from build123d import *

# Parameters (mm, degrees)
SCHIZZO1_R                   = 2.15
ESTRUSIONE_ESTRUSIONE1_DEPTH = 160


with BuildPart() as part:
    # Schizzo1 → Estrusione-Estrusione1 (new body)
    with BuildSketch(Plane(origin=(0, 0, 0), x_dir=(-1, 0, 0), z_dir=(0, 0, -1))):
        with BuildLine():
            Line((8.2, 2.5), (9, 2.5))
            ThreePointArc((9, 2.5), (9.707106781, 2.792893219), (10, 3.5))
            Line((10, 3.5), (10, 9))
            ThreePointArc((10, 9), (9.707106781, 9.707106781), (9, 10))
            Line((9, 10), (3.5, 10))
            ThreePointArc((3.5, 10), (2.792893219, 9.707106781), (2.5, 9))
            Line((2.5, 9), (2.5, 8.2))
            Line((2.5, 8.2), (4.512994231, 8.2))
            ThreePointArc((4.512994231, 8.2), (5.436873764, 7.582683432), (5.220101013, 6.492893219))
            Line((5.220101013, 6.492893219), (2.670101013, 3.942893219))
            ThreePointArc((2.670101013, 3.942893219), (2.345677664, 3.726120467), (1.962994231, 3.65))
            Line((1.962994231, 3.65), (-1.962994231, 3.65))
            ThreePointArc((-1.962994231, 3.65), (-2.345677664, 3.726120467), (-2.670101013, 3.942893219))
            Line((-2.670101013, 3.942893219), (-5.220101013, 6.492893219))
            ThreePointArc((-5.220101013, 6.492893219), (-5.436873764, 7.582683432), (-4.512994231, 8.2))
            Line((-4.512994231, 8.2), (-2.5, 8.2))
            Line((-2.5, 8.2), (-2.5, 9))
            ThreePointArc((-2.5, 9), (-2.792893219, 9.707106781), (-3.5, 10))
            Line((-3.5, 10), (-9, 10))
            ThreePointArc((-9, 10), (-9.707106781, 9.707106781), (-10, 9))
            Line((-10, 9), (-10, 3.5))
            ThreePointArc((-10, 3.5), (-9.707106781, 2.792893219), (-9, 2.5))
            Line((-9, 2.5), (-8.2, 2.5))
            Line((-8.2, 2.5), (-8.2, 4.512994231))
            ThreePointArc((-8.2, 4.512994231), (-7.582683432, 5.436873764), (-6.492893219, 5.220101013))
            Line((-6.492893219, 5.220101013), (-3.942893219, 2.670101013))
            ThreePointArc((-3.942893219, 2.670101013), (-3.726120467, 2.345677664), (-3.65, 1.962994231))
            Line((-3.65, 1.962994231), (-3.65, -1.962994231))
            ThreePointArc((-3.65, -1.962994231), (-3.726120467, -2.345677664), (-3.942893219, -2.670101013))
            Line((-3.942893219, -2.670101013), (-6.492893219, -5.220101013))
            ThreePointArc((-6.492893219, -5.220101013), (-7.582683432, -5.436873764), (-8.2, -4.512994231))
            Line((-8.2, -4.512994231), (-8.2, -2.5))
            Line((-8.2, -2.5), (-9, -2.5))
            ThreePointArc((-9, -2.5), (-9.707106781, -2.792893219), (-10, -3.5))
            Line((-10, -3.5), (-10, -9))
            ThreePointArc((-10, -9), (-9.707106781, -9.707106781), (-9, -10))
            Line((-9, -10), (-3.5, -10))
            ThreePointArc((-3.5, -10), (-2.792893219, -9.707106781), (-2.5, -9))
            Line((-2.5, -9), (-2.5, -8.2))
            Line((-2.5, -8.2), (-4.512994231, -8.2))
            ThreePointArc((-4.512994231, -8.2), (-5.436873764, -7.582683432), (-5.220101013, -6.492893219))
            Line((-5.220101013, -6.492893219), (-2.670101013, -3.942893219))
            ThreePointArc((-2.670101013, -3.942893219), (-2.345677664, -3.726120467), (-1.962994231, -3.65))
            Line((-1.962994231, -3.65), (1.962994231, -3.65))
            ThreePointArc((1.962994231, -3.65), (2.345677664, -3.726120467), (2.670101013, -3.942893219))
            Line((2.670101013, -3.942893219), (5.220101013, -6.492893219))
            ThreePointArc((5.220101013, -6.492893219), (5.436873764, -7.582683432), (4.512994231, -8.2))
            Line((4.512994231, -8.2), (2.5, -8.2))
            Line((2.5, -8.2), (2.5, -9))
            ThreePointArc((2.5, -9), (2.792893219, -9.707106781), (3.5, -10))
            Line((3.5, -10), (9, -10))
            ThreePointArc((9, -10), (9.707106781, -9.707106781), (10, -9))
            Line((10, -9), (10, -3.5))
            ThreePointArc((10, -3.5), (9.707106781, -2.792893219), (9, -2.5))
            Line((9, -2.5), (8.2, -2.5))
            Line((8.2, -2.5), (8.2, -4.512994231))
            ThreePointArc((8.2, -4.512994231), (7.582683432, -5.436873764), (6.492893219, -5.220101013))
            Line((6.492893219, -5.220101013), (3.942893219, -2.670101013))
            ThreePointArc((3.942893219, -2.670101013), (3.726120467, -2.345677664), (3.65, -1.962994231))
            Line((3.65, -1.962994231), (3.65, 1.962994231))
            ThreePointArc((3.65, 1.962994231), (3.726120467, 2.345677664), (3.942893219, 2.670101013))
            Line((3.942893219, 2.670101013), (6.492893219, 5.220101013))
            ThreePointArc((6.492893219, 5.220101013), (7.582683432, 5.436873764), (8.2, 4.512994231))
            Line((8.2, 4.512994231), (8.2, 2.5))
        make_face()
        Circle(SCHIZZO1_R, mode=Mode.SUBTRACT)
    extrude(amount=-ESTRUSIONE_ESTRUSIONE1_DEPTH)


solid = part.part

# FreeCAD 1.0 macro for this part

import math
import FreeCAD as App
import Part
import Sketcher

doc = App.newDocument("Part")
body = doc.addObject("PartDesign::Body", "Body")

sketch1 = body.newObject("Sketcher::SketchObject", "Sketch")
sketch1.AttachmentSupport = (doc.getObject("XY_Plane"), [""])
sketch1.MapMode = "FlatFace"
sketch1.addGeometry(Part.LineSegment(App.Vector(-8.2, 2.5, 0), App.Vector(-9, 2.5, 0)), False)
sketch1.addGeometry(Part.ArcOfCircle(Part.Circle(App.Vector(-9, 3.5, 0), App.Vector(0, 0, 1), 1), math.radians(-180), math.radians(-90)), False)
sketch1.addGeometry(Part.LineSegment(App.Vector(-10, 3.5, 0), App.Vector(-10, 9, 0)), False)
sketch1.addGeometry(Part.ArcOfCircle(Part.Circle(App.Vector(-9, 9, 0), App.Vector(0, 0, 1), 1), math.radians(90), math.radians(180)), False)
sketch1.addGeometry(Part.LineSegment(App.Vector(-9, 10, 0), App.Vector(-3.5, 10, 0)), False)
sketch1.addGeometry(Part.ArcOfCircle(Part.Circle(App.Vector(-3.5, 9, 0), App.Vector(0, 0, 1), 1), math.radians(0), math.radians(90)), False)
sketch1.addGeometry(Part.LineSegment(App.Vector(-2.5, 9, 0), App.Vector(-2.5, 8.2, 0)), False)
sketch1.addGeometry(Part.LineSegment(App.Vector(-2.5, 8.2, 0), App.Vector(-4.512994, 8.2, 0)), False)
sketch1.addGeometry(Part.ArcOfCircle(Part.Circle(App.Vector(-4.512994, 7.2, 0), App.Vector(0, 0, 1), 1), math.radians(90), math.radians(225)), False)
sketch1.addGeometry(Part.LineSegment(App.Vector(-5.220101, 6.492893, 0), App.Vector(-2.670101, 3.942893, 0)), False)
sketch1.addGeometry(Part.ArcOfCircle(Part.Circle(App.Vector(-1.962994, 4.65, 0), App.Vector(0, 0, 1), 1), math.radians(-135), math.radians(-90)), False)
sketch1.addGeometry(Part.LineSegment(App.Vector(-1.962994, 3.65, 0), App.Vector(1.962994, 3.65, 0)), False)
sketch1.addGeometry(Part.ArcOfCircle(Part.Circle(App.Vector(1.962994, 4.65, 0), App.Vector(0, 0, 1), 1), math.radians(-90), math.radians(-45)), False)
sketch1.addGeometry(Part.LineSegment(App.Vector(2.670101, 3.942893, 0), App.Vector(5.220101, 6.492893, 0)), False)
sketch1.addGeometry(Part.ArcOfCircle(Part.Circle(App.Vector(4.512994, 7.2, 0), App.Vector(0, 0, 1), 1), math.radians(-45), math.radians(90)), False)
sketch1.addGeometry(Part.LineSegment(App.Vector(4.512994, 8.2, 0), App.Vector(2.5, 8.2, 0)), False)
sketch1.addGeometry(Part.LineSegment(App.Vector(2.5, 8.2, 0), App.Vector(2.5, 9, 0)), False)
sketch1.addGeometry(Part.ArcOfCircle(Part.Circle(App.Vector(3.5, 9, 0), App.Vector(0, 0, 1), 1), math.radians(90), math.radians(180)), False)
sketch1.addGeometry(Part.LineSegment(App.Vector(3.5, 10, 0), App.Vector(9, 10, 0)), False)
sketch1.addGeometry(Part.ArcOfCircle(Part.Circle(App.Vector(9, 9, 0), App.Vector(0, 0, 1), 1), math.radians(0), math.radians(90)), False)
sketch1.addGeometry(Part.LineSegment(App.Vector(10, 9, 0), App.Vector(10, 3.5, 0)), False)
sketch1.addGeometry(Part.ArcOfCircle(Part.Circle(App.Vector(9, 3.5, 0), App.Vector(0, 0, 1), 1), math.radians(-90), math.radians(0)), False)
sketch1.addGeometry(Part.LineSegment(App.Vector(9, 2.5, 0), App.Vector(8.2, 2.5, 0)), False)
sketch1.addGeometry(Part.LineSegment(App.Vector(8.2, 2.5, 0), App.Vector(8.2, 4.512994, 0)), False)
sketch1.addGeometry(Part.ArcOfCircle(Part.Circle(App.Vector(7.2, 4.512994, 0), App.Vector(0, 0, 1), 1), math.radians(0), math.radians(135)), False)
sketch1.addGeometry(Part.LineSegment(App.Vector(6.492893, 5.220101, 0), App.Vector(3.942893, 2.670101, 0)), False)
sketch1.addGeometry(Part.ArcOfCircle(Part.Circle(App.Vector(4.65, 1.962994, 0), App.Vector(0, 0, 1), 1), math.radians(135), math.radians(180)), False)
sketch1.addGeometry(Part.LineSegment(App.Vector(3.65, 1.962994, 0), App.Vector(3.65, -1.962994, 0)), False)
sketch1.addGeometry(Part.ArcOfCircle(Part.Circle(App.Vector(4.65, -1.962994, 0), App.Vector(0, 0, 1), 1), math.radians(180), math.radians(225)), False)
sketch1.addGeometry(Part.LineSegment(App.Vector(3.942893, -2.670101, 0), App.Vector(6.492893, -5.220101, 0)), False)
sketch1.addGeometry(Part.ArcOfCircle(Part.Circle(App.Vector(7.2, -4.512994, 0), App.Vector(0, 0, 1), 1), math.radians(-135), math.radians(0)), False)
sketch1.addGeometry(Part.LineSegment(App.Vector(8.2, -4.512994, 0), App.Vector(8.2, -2.5, 0)), False)
sketch1.addGeometry(Part.LineSegment(App.Vector(8.2, -2.5, 0), App.Vector(9, -2.5, 0)), False)
sketch1.addGeometry(Part.ArcOfCircle(Part.Circle(App.Vector(9, -3.5, 0), App.Vector(0, 0, 1), 1), math.radians(0), math.radians(90)), False)
sketch1.addGeometry(Part.LineSegment(App.Vector(10, -3.5, 0), App.Vector(10, -9, 0)), False)
sketch1.addGeometry(Part.ArcOfCircle(Part.Circle(App.Vector(9, -9, 0), App.Vector(0, 0, 1), 1), math.radians(-90), math.radians(0)), False)
sketch1.addGeometry(Part.LineSegment(App.Vector(9, -10, 0), App.Vector(3.5, -10, 0)), False)
sketch1.addGeometry(Part.ArcOfCircle(Part.Circle(App.Vector(3.5, -9, 0), App.Vector(0, 0, 1), 1), math.radians(-180), math.radians(-90)), False)
sketch1.addGeometry(Part.LineSegment(App.Vector(2.5, -9, 0), App.Vector(2.5, -8.2, 0)), False)
sketch1.addGeometry(Part.LineSegment(App.Vector(2.5, -8.2, 0), App.Vector(4.512994, -8.2, 0)), False)
sketch1.addGeometry(Part.ArcOfCircle(Part.Circle(App.Vector(4.512994, -7.2, 0), App.Vector(0, 0, 1), 1), math.radians(-90), math.radians(45)), False)
sketch1.addGeometry(Part.LineSegment(App.Vector(5.220101, -6.492893, 0), App.Vector(2.670101, -3.942893, 0)), False)
sketch1.addGeometry(Part.ArcOfCircle(Part.Circle(App.Vector(1.962994, -4.65, 0), App.Vector(0, 0, 1), 1), math.radians(45), math.radians(90)), False)
sketch1.addGeometry(Part.LineSegment(App.Vector(1.962994, -3.65, 0), App.Vector(-1.962994, -3.65, 0)), False)
sketch1.addGeometry(Part.ArcOfCircle(Part.Circle(App.Vector(-1.962994, -4.65, 0), App.Vector(0, 0, 1), 1), math.radians(90), math.radians(135)), False)
sketch1.addGeometry(Part.LineSegment(App.Vector(-2.670101, -3.942893, 0), App.Vector(-5.220101, -6.492893, 0)), False)
sketch1.addGeometry(Part.ArcOfCircle(Part.Circle(App.Vector(-4.512994, -7.2, 0), App.Vector(0, 0, 1), 1), math.radians(135), math.radians(270)), False)
sketch1.addGeometry(Part.LineSegment(App.Vector(-4.512994, -8.2, 0), App.Vector(-2.5, -8.2, 0)), False)
sketch1.addGeometry(Part.LineSegment(App.Vector(-2.5, -8.2, 0), App.Vector(-2.5, -9, 0)), False)
sketch1.addGeometry(Part.ArcOfCircle(Part.Circle(App.Vector(-3.5, -9, 0), App.Vector(0, 0, 1), 1), math.radians(-90), math.radians(0)), False)
sketch1.addGeometry(Part.LineSegment(App.Vector(-3.5, -10, 0), App.Vector(-9, -10, 0)), False)
sketch1.addGeometry(Part.ArcOfCircle(Part.Circle(App.Vector(-9, -9, 0), App.Vector(0, 0, 1), 1), math.radians(-180), math.radians(-90)), False)
sketch1.addGeometry(Part.LineSegment(App.Vector(-10, -9, 0), App.Vector(-10, -3.5, 0)), False)
sketch1.addGeometry(Part.ArcOfCircle(Part.Circle(App.Vector(-9, -3.5, 0), App.Vector(0, 0, 1), 1), math.radians(90), math.radians(180)), False)
sketch1.addGeometry(Part.LineSegment(App.Vector(-9, -2.5, 0), App.Vector(-8.2, -2.5, 0)), False)
sketch1.addGeometry(Part.LineSegment(App.Vector(-8.2, -2.5, 0), App.Vector(-8.2, -4.512994, 0)), False)
sketch1.addGeometry(Part.ArcOfCircle(Part.Circle(App.Vector(-7.2, -4.512994, 0), App.Vector(0, 0, 1), 1), math.radians(180), math.radians(315)), False)
sketch1.addGeometry(Part.LineSegment(App.Vector(-6.492893, -5.220101, 0), App.Vector(-3.942893, -2.670101, 0)), False)
sketch1.addGeometry(Part.ArcOfCircle(Part.Circle(App.Vector(-4.65, -1.962994, 0), App.Vector(0, 0, 1), 1), math.radians(-45), math.radians(0)), False)
sketch1.addGeometry(Part.LineSegment(App.Vector(-3.65, -1.962994, 0), App.Vector(-3.65, 1.962994, 0)), False)
sketch1.addGeometry(Part.ArcOfCircle(Part.Circle(App.Vector(-4.65, 1.962994, 0), App.Vector(0, 0, 1), 1), math.radians(0), math.radians(45)), False)
sketch1.addGeometry(Part.LineSegment(App.Vector(-3.942893, 2.670101, 0), App.Vector(-6.492893, 5.220101, 0)), False)
sketch1.addGeometry(Part.ArcOfCircle(Part.Circle(App.Vector(-7.2, 4.512994, 0), App.Vector(0, 0, 1), 1), math.radians(45), math.radians(180)), False)
sketch1.addGeometry(Part.LineSegment(App.Vector(-8.2, 4.512994, 0), App.Vector(-8.2, 2.5, 0)), False)
sketch1.addGeometry(Part.Circle(App.Vector(0, 0, 0), App.Vector(0, 0, 1), 2.15), False)
sketch1.addConstraint(Sketcher.Constraint("Tangent", 0, 2, 1, 2))
sketch1.addConstraint(Sketcher.Constraint("Tangent", 1, 1, 2, 1))
sketch1.addConstraint(Sketcher.Constraint("Tangent", 2, 2, 3, 2))
sketch1.addConstraint(Sketcher.Constraint("Tangent", 3, 1, 4, 1))
sketch1.addConstraint(Sketcher.Constraint("Tangent", 4, 2, 5, 2))
sketch1.addConstraint(Sketcher.Constraint("Tangent", 5, 1, 6, 1))
sketch1.addConstraint(Sketcher.Constraint("Coincident", 6, 2, 7, 1))
sketch1.addConstraint(Sketcher.Constraint("Tangent", 7, 2, 8, 1))
sketch1.addConstraint(Sketcher.Constraint("Tangent", 8, 2, 9, 1))
sketch1.addConstraint(Sketcher.Constraint("Tangent", 9, 2, 10, 1))
sketch1.addConstraint(Sketcher.Constraint("Tangent", 10, 2, 11, 1))
sketch1.addConstraint(Sketcher.Constraint("Tangent", 11, 2, 12, 1))
sketch1.addConstraint(Sketcher.Constraint("Tangent", 12, 2, 13, 1))
sketch1.addConstraint(Sketcher.Constraint("Tangent", 13, 2, 14, 1))
sketch1.addConstraint(Sketcher.Constraint("Tangent", 14, 2, 15, 1))
sketch1.addConstraint(Sketcher.Constraint("Coincident", 15, 2, 16, 1))
sketch1.addConstraint(Sketcher.Constraint("Tangent", 16, 2, 17, 2))
sketch1.addConstraint(Sketcher.Constraint("Tangent", 17, 1, 18, 1))
sketch1.addConstraint(Sketcher.Constraint("Tangent", 18, 2, 19, 2))
sketch1.addConstraint(Sketcher.Constraint("Tangent", 19, 1, 20, 1))
sketch1.addConstraint(Sketcher.Constraint("Tangent", 20, 2, 21, 2))
sketch1.addConstraint(Sketcher.Constraint("Tangent", 21, 1, 22, 1))
sketch1.addConstraint(Sketcher.Constraint("Coincident", 22, 2, 23, 1))
sketch1.addConstraint(Sketcher.Constraint("Tangent", 23, 2, 24, 1))
sketch1.addConstraint(Sketcher.Constraint("Tangent", 24, 2, 25, 1))
sketch1.addConstraint(Sketcher.Constraint("Tangent", 25, 2, 26, 1))
sketch1.addConstraint(Sketcher.Constraint("Tangent", 26, 2, 27, 1))
sketch1.addConstraint(Sketcher.Constraint("Tangent", 27, 2, 28, 1))
sketch1.addConstraint(Sketcher.Constraint("Tangent", 28, 2, 29, 1))
sketch1.addConstraint(Sketcher.Constraint("Tangent", 29, 2, 30, 1))
sketch1.addConstraint(Sketcher.Constraint("Tangent", 30, 2, 31, 1))
sketch1.addConstraint(Sketcher.Constraint("Coincident", 31, 2, 32, 1))
sketch1.addConstraint(Sketcher.Constraint("Tangent", 32, 2, 33, 2))
sketch1.addConstraint(Sketcher.Constraint("Tangent", 33, 1, 34, 1))
sketch1.addConstraint(Sketcher.Constraint("Tangent", 34, 2, 35, 2))
sketch1.addConstraint(Sketcher.Constraint("Tangent", 35, 1, 36, 1))
sketch1.addConstraint(Sketcher.Constraint("Tangent", 36, 2, 37, 2))
sketch1.addConstraint(Sketcher.Constraint("Tangent", 37, 1, 38, 1))
sketch1.addConstraint(Sketcher.Constraint("Coincident", 38, 2, 39, 1))
sketch1.addConstraint(Sketcher.Constraint("Tangent", 39, 2, 40, 1))
sketch1.addConstraint(Sketcher.Constraint("Tangent", 40, 2, 41, 1))
sketch1.addConstraint(Sketcher.Constraint("Tangent", 41, 2, 42, 1))
sketch1.addConstraint(Sketcher.Constraint("Tangent", 42, 2, 43, 1))
sketch1.addConstraint(Sketcher.Constraint("Tangent", 43, 2, 44, 1))
sketch1.addConstraint(Sketcher.Constraint("Tangent", 44, 2, 45, 1))
sketch1.addConstraint(Sketcher.Constraint("Tangent", 45, 2, 46, 1))
sketch1.addConstraint(Sketcher.Constraint("Tangent", 46, 2, 47, 1))
sketch1.addConstraint(Sketcher.Constraint("Coincident", 47, 2, 48, 1))
sketch1.addConstraint(Sketcher.Constraint("Tangent", 48, 2, 49, 2))
sketch1.addConstraint(Sketcher.Constraint("Tangent", 49, 1, 50, 1))
sketch1.addConstraint(Sketcher.Constraint("Tangent", 50, 2, 51, 2))
sketch1.addConstraint(Sketcher.Constraint("Tangent", 51, 1, 52, 1))
sketch1.addConstraint(Sketcher.Constraint("Tangent", 52, 2, 53, 2))
sketch1.addConstraint(Sketcher.Constraint("Tangent", 53, 1, 54, 1))
sketch1.addConstraint(Sketcher.Constraint("Coincident", 54, 2, 55, 1))
sketch1.addConstraint(Sketcher.Constraint("Tangent", 55, 2, 56, 1))
sketch1.addConstraint(Sketcher.Constraint("Tangent", 56, 2, 57, 1))
sketch1.addConstraint(Sketcher.Constraint("Tangent", 57, 2, 58, 1))
sketch1.addConstraint(Sketcher.Constraint("Tangent", 58, 2, 59, 1))
sketch1.addConstraint(Sketcher.Constraint("Tangent", 59, 2, 60, 1))
sketch1.addConstraint(Sketcher.Constraint("Tangent", 60, 2, 61, 1))
sketch1.addConstraint(Sketcher.Constraint("Tangent", 61, 2, 62, 1))
sketch1.addConstraint(Sketcher.Constraint("Tangent", 62, 2, 63, 1))
sketch1.addConstraint(Sketcher.Constraint("Coincident", 63, 2, 0, 1))
sketch1.addConstraint(Sketcher.Constraint("Horizontal", 0))
sketch1.addConstraint(Sketcher.Constraint("Vertical", 2))
sketch1.addConstraint(Sketcher.Constraint("Horizontal", 4))
sketch1.addConstraint(Sketcher.Constraint("Vertical", 6))
sketch1.addConstraint(Sketcher.Constraint("Horizontal", 7))
sketch1.addConstraint(Sketcher.Constraint("Horizontal", 11))
sketch1.addConstraint(Sketcher.Constraint("Horizontal", 15))
sketch1.addConstraint(Sketcher.Constraint("Vertical", 16))
sketch1.addConstraint(Sketcher.Constraint("Horizontal", 18))
sketch1.addConstraint(Sketcher.Constraint("Vertical", 20))
sketch1.addConstraint(Sketcher.Constraint("Horizontal", 22))
sketch1.addConstraint(Sketcher.Constraint("Vertical", 23))
sketch1.addConstraint(Sketcher.Constraint("Vertical", 27))
sketch1.addConstraint(Sketcher.Constraint("Vertical", 31))
sketch1.addConstraint(Sketcher.Constraint("Horizontal", 32))
sketch1.addConstraint(Sketcher.Constraint("Vertical", 34))
sketch1.addConstraint(Sketcher.Constraint("Horizontal", 36))
sketch1.addConstraint(Sketcher.Constraint("Vertical", 38))
sketch1.addConstraint(Sketcher.Constraint("Horizontal", 39))
sketch1.addConstraint(Sketcher.Constraint("Horizontal", 43))
sketch1.addConstraint(Sketcher.Constraint("Horizontal", 47))
sketch1.addConstraint(Sketcher.Constraint("Vertical", 48))
sketch1.addConstraint(Sketcher.Constraint("Horizontal", 50))
sketch1.addConstraint(Sketcher.Constraint("Vertical", 52))
sketch1.addConstraint(Sketcher.Constraint("Horizontal", 54))
sketch1.addConstraint(Sketcher.Constraint("Vertical", 55))
sketch1.addConstraint(Sketcher.Constraint("Vertical", 59))
sketch1.addConstraint(Sketcher.Constraint("Vertical", 63))
sketch1.addConstraint(Sketcher.Constraint("Coincident", 64, 3, -1, 1))
sketch1.addConstraint(Sketcher.Constraint("Equal", 1, 3))
sketch1.addConstraint(Sketcher.Constraint("Equal", 3, 5))
sketch1.addConstraint(Sketcher.Constraint("Equal", 5, 8))
sketch1.addConstraint(Sketcher.Constraint("Equal", 8, 10))
sketch1.addConstraint(Sketcher.Constraint("Equal", 10, 12))
sketch1.addConstraint(Sketcher.Constraint("Equal", 12, 14))
sketch1.addConstraint(Sketcher.Constraint("Equal", 14, 17))
sketch1.addConstraint(Sketcher.Constraint("Equal", 17, 19))
sketch1.addConstraint(Sketcher.Constraint("Equal", 19, 21))
sketch1.addConstraint(Sketcher.Constraint("Equal", 21, 24))
sketch1.addConstraint(Sketcher.Constraint("Equal", 24, 26))
sketch1.addConstraint(Sketcher.Constraint("Equal", 26, 28))
sketch1.addConstraint(Sketcher.Constraint("Equal", 28, 30))
sketch1.addConstraint(Sketcher.Constraint("Equal", 30, 33))
sketch1.addConstraint(Sketcher.Constraint("Equal", 33, 35))
sketch1.addConstraint(Sketcher.Constraint("Equal", 35, 37))
sketch1.addConstraint(Sketcher.Constraint("Equal", 37, 40))
sketch1.addConstraint(Sketcher.Constraint("Equal", 40, 42))
sketch1.addConstraint(Sketcher.Constraint("Equal", 42, 44))
sketch1.addConstraint(Sketcher.Constraint("Equal", 44, 46))
sketch1.addConstraint(Sketcher.Constraint("Equal", 46, 49))
sketch1.addConstraint(Sketcher.Constraint("Equal", 49, 51))
sketch1.addConstraint(Sketcher.Constraint("Equal", 51, 53))
sketch1.addConstraint(Sketcher.Constraint("Equal", 53, 56))
sketch1.addConstraint(Sketcher.Constraint("Equal", 56, 58))
sketch1.addConstraint(Sketcher.Constraint("Equal", 58, 60))
sketch1.addConstraint(Sketcher.Constraint("Equal", 60, 62))
sketch1.addConstraint(Sketcher.Constraint("Symmetric", 1, 3, 33, 3, -1, 1))
sketch1.addConstraint(Sketcher.Constraint("Symmetric", 5, 3, 37, 3, -1, 1))
sketch1.addConstraint(Sketcher.Constraint("Symmetric", 8, 3, 40, 3, -1, 1))
sketch1.addConstraint(Sketcher.Constraint("Symmetric", 10, 3, 42, 3, -1, 1))
sketch1.addConstraint(Sketcher.Constraint("Symmetric", 14, 3, 46, 3, -1, 1))
sketch1.addConstraint(Sketcher.Constraint("Symmetric", 17, 3, 49, 3, -1, 1))
sketch1.addConstraint(Sketcher.Constraint("Symmetric", 21, 3, 53, 3, -1, 1))
sketch1.addConstraint(Sketcher.Constraint("Symmetric", 24, 3, 56, 3, -1, 1))
sketch1.addConstraint(Sketcher.Constraint("Symmetric", 26, 3, 58, 3, -1, 1))
sketch1.addConstraint(Sketcher.Constraint("Symmetric", 30, 3, 62, 3, -1, 1))
sketch1.addConstraint(Sketcher.Constraint("Symmetric", 8, 3, 14, 3, -2))
sketch1.addConstraint(Sketcher.Constraint("Symmetric", 5, 3, 17, 3, -2))
sketch1.addConstraint(Sketcher.Constraint("Symmetric", 1, 3, 21, 3, -2))
sketch1.addConstraint(Sketcher.Constraint("Symmetric", 30, 3, 56, 3, -2))
sketch1.addConstraint(Sketcher.Constraint("Perpendicular", 9, 13))
sketch1.addConstraint(Sketcher.Constraint("Parallel", 13, 25))
sketch1.addConstraint(Sketcher.Constraint("Perpendicular", 25, 29))
sketch1.addConstraint(Sketcher.Constraint("Perpendicular", 41, 45))
sketch1.addConstraint(Sketcher.Constraint("Perpendicular", 57, 61))
sketch1.addConstraint(Sketcher.Constraint("Horizontal", 28, 3, 58, 3))
sketch1.addConstraint(Sketcher.Constraint("Equal", 50, 2))
sketch1.addConstraint(Sketcher.Constraint("Equal", 54, 6))
sketch1.addConstraint(Sketcher.Constraint("Equal", 47, 23))
sketch1.addConstraint(Sketcher.Constraint("Equal", 43, 27))
sketch1.addConstraint(Sketcher.Constraint("Equal", 13, 25))
sketch1.addConstraint(Sketcher.Constraint("Radius", 1, 1.0))
sketch1.addConstraint(Sketcher.Constraint("Diameter", 64, 4.3))
sketch1.addConstraint(Sketcher.Constraint("DistanceX", 0, 2, 0, 1, 0.8))
sketch1.addConstraint(Sketcher.Constraint("DistanceX", 4, 1, 4, 2, 5.5))
sketch1.addConstraint(Sketcher.Constraint("DistanceX", 1, 3, -1, 1, 9.0))
sketch1.addConstraint(Sketcher.Constraint("DistanceY", -1, 1, 10, 3, 4.65))
sketch1.addConstraint(Sketcher.Constraint("DistanceX", 11, 1, 11, 2, 3.925988))
pad1 = body.newObject("PartDesign::Pad", "Pad")
pad1.Profile = sketch1
pad1.Length = 160

doc.recompute()
